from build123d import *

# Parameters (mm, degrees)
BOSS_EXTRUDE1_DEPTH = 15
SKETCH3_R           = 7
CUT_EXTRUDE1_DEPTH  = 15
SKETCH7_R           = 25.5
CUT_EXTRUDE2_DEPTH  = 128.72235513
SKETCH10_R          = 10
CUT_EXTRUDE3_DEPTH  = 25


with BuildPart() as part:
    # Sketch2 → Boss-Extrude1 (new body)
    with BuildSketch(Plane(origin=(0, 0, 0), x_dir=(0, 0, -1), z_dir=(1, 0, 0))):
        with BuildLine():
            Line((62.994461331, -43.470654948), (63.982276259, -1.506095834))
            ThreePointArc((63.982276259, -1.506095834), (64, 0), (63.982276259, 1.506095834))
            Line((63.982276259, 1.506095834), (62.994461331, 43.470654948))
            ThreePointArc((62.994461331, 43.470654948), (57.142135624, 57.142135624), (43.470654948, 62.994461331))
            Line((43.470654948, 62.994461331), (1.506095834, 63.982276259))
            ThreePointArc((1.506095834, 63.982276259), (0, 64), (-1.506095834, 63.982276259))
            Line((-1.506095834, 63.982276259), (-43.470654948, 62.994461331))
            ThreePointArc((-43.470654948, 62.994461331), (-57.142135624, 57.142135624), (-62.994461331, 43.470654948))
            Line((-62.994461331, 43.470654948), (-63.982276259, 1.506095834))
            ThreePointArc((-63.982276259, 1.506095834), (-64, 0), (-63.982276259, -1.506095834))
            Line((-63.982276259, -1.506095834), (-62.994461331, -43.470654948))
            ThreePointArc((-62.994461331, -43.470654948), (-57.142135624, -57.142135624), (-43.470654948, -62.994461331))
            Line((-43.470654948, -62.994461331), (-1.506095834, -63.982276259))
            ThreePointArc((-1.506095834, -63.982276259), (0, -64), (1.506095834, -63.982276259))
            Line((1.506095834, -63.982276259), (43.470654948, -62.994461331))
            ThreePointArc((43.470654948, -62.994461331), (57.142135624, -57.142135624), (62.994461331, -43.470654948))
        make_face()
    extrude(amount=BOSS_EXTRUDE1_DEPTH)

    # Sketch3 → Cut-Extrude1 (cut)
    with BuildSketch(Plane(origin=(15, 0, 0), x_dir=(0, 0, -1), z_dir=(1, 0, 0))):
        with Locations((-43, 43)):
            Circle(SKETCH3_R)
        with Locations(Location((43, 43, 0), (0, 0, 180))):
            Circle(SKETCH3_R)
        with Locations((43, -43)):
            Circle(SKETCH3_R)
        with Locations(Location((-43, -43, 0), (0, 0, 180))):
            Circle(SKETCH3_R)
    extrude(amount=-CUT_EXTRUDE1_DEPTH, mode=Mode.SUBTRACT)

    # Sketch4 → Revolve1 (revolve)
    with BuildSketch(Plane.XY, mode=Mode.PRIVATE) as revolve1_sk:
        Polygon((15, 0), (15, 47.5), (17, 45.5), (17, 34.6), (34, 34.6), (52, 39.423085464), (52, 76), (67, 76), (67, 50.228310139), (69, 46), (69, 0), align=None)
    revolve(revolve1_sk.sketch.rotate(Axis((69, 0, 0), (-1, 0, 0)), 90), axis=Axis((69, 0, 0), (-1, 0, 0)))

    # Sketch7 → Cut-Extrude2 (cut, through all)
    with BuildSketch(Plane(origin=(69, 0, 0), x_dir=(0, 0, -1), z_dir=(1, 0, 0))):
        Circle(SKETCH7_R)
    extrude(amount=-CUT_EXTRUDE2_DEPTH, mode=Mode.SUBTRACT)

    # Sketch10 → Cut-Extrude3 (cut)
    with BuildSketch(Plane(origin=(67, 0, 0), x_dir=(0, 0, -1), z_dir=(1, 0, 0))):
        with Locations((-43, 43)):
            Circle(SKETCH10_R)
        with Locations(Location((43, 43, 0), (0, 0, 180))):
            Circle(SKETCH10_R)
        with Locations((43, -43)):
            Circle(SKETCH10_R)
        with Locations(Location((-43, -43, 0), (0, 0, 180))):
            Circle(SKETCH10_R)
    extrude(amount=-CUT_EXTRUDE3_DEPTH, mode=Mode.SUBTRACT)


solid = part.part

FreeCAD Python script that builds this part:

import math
import FreeCAD as App
import Part
import Sketcher
from FreeCAD import Vector
Q = App.Units.Quantity

doc = App.newDocument("Part")
body = doc.addObject("PartDesign::Body", "Body")

# Sketch on YZ plane
sketch1 = body.newObject("Sketcher::SketchObject", "Sketch")
sketch1.AttachmentSupport = (doc.getObject("YZ_Plane"), [""])
sketch1.MapMode = "FlatFace"
sketch1.addGeometry([
    Part.LineSegment(Vector(-43.5, -63, 0), Vector(-1.5, -64, 0)),  # 0
    Part.ArcOfCircle(Part.Circle(Vector(0, 0, 0), Vector(0, 0, 1), 64), math.radians(-91.35), math.radians(-88.65)),  # 1
    Part.LineSegment(Vector(1.5, -64, 0), Vector(43.5, -63, 0)),  # 2
    Part.ArcOfCircle(Part.Circle(Vector(43, -43, 0), Vector(0, 0, 1), 20), math.radians(-89), math.radians(-1)),  # 3
    Part.LineSegment(Vector(63, -43.5, 0), Vector(64, -1.5, 0)),  # 4
    Part.ArcOfCircle(Part.Circle(Vector(0, 0, 0), Vector(0, 0, 1), 64), math.radians(-1.35), math.radians(1.35)),  # 5
    Part.LineSegment(Vector(64, 1.5, 0), Vector(63, 43.5, 0)),  # 6
    Part.ArcOfCircle(Part.Circle(Vector(43, 43, 0), Vector(0, 0, 1), 20), math.radians(1), math.radians(89)),  # 7
    Part.LineSegment(Vector(43.5, 63, 0), Vector(1.5, 64, 0)),  # 8
    Part.ArcOfCircle(Part.Circle(Vector(0, 0, 0), Vector(0, 0, 1), 64), math.radians(88.65), math.radians(91.35)),  # 9
    Part.LineSegment(Vector(-1.5, 64, 0), Vector(-43.5, 63, 0)),  # 10
    Part.ArcOfCircle(Part.Circle(Vector(-43, 43, 0), Vector(0, 0, 1), 20), math.radians(91), math.radians(179)),  # 11
    Part.LineSegment(Vector(-63, 43.5, 0), Vector(-64, 1.5, 0)),  # 12
    Part.ArcOfCircle(Part.Circle(Vector(0, 0, 0), Vector(0, 0, 1), 64), math.radians(178.65), math.radians(181.35)),  # 13
    Part.LineSegment(Vector(-64, -1.5, 0), Vector(-63, -43.5, 0)),  # 14
    Part.ArcOfCircle(Part.Circle(Vector(-43, -43, 0), Vector(0, 0, 1), 20), math.radians(-179), math.radians(-91)),  # 15
], False)
sketch1.addConstraint([
    Sketcher.Constraint("Tangent", 0, 2, 1, 1),
    Sketcher.Constraint("Tangent", 1, 2, 2, 1),
    Sketcher.Constraint("Tangent", 2, 2, 3, 1),
    Sketcher.Constraint("Tangent", 3, 2, 4, 1),
    Sketcher.Constraint("Tangent", 4, 2, 5, 1),
    Sketcher.Constraint("Tangent", 5, 2, 6, 1),
    Sketcher.Constraint("Tangent", 6, 2, 7, 1),
    Sketcher.Constraint("Tangent", 7, 2, 8, 1),
    Sketcher.Constraint("Tangent", 8, 2, 9, 1),
    Sketcher.Constraint("Tangent", 9, 2, 10, 1),
    Sketcher.Constraint("Tangent", 10, 2, 11, 1),
    Sketcher.Constraint("Tangent", 11, 2, 12, 1),
    Sketcher.Constraint("Tangent", 12, 2, 13, 1),
    Sketcher.Constraint("Tangent", 13, 2, 14, 1),
    Sketcher.Constraint("Tangent", 14, 2, 15, 1),
    Sketcher.Constraint("Tangent", 15, 2, 0, 1),
    Sketcher.Constraint("Coincident", 1, 3, -1, 1),
    Sketcher.Constraint("Coincident", 5, 3, -1, 1),
    Sketcher.Constraint("Coincident", 9, 3, -1, 1),
    Sketcher.Constraint("Coincident", 13, 3, -1, 1),
    Sketcher.Constraint("Equal", 1, 5),
    Sketcher.Constraint("Equal", 3, 7),
    Sketcher.Constraint("Equal", 5, 9),
    Sketcher.Constraint("Equal", 7, 11),
    Sketcher.Constraint("Equal", 9, 13),
    Sketcher.Constraint("Equal", 11, 15),
    Sketcher.Constraint("Symmetric", 3, 3, 11, 3, -1, 1),
    Sketcher.Constraint("Symmetric", 7, 3, 15, 3, -1, 1),
    Sketcher.Constraint("Symmetric", 7, 3, 11, 3, -2),
    Sketcher.Constraint("Perpendicular", 0, 4),
    Sketcher.Constraint("Radius", 1, Q("63.999998 mm")),
    Sketcher.Constraint("Radius", 3, Q("20 mm")),
    Sketcher.Constraint("DistanceX", -1, 1, 3, 3, Q("43 mm")),
])
pad1 = body.newObject("PartDesign::Pad", "Pad")
pad1.Profile = sketch1
pad1.Length = 15

# Sketch on YZ plane
sketch2 = body.newObject("Sketcher::SketchObject", "Sketch001")
sketch2.AttachmentSupport = (doc.getObject("YZ_Plane"), [""])
sketch2.MapMode = "FlatFace"
sketch2.AttachmentOffset = App.Placement(Vector(0, 0, 15), App.Rotation())
sketch2.addGeometry([
    Part.Circle(Vector(43, 43, 0), Vector(0, 0, 1), 7),
    Part.Circle(Vector(43, -43, 0), Vector(0, 0, 1), 7),
    Part.Circle(Vector(-43, -43, 0), Vector(0, 0, 1), 7),
    Part.Circle(Vector(-43, 43, 0), Vector(0, 0, 1), 7),
], False)
sketch2.addConstraint([
    Sketcher.Constraint("Equal", 0, 1),
    Sketcher.Constraint("Equal", 1, 2),
    Sketcher.Constraint("Equal", 2, 3),
    Sketcher.Constraint("Symmetric", 0, 3, 2, 3, -1, 1),
    Sketcher.Constraint("Symmetric", 1, 3, 3, 3, -1, 1),
    Sketcher.Constraint("Symmetric", 1, 3, 2, 3, -2),
    Sketcher.Constraint("Diameter", 0, Q("14 mm")),
    Sketcher.Constraint("DistanceX", -1, 1, 0, 3, Q("43 mm")),
    Sketcher.Constraint("DistanceY", -1, 1, 0, 3, Q("43 mm")),
])
pocket1 = body.newObject("PartDesign::Pocket", "Pocket")
pocket1.Profile = sketch2
pocket1.Length = 15

# Sketch on XY plane
sketch3 = body.newObject("Sketcher::SketchObject", "Sketch002")
sketch3.AttachmentSupport = (doc.getObject("XY_Plane"), [""])
sketch3.MapMode = "FlatFace"
sketch3.addGeometry([
    Part.LineSegment(Vector(15, 47.5, 0), Vector(15, 0, 0)),  # 0
    Part.LineSegment(Vector(15, 0, 0), Vector(69, 0, 0)),  # 1
    Part.LineSegment(Vector(69, 0, 0), Vector(69, 46, 0)),  # 2
    Part.LineSegment(Vector(69, 46, 0), Vector(67, 50.2, 0)),  # 3
    Part.LineSegment(Vector(67, 50.2, 0), Vector(67, 76, 0)),  # 4
    Part.LineSegment(Vector(67, 76, 0), Vector(52, 76, 0)),  # 5
    Part.LineSegment(Vector(52, 76, 0), Vector(52, 39.4, 0)),  # 6
    Part.LineSegment(Vector(52, 39.4, 0), Vector(34, 34.6, 0)),  # 7
    Part.LineSegment(Vector(34, 34.6, 0), Vector(17, 34.6, 0)),  # 8
    Part.LineSegment(Vector(17, 34.6, 0), Vector(17, 45.5, 0)),  # 9
    Part.LineSegment(Vector(17, 45.5, 0), Vector(15, 47.5, 0)),  # 10
], False)
sketch3.addConstraint([
    Sketcher.Constraint("Coincident", 0, 2, 1, 1),
    Sketcher.Constraint("Coincident", 1, 2, 2, 1),
    Sketcher.Constraint("Coincident", 2, 2, 3, 1),
    Sketcher.Constraint("Coincident", 3, 2, 4, 1),
    Sketcher.Constraint("Coincident", 4, 2, 5, 1),
    Sketcher.Constraint("Coincident", 5, 2, 6, 1),
    Sketcher.Constraint("Coincident", 6, 2, 7, 1),
    Sketcher.Constraint("Coincident", 7, 2, 8, 1),
    Sketcher.Constraint("Coincident", 8, 2, 9, 1),
    Sketcher.Constraint("Coincident", 9, 2, 10, 1),
    Sketcher.Constraint("Coincident", 10, 2, 0, 1),
    Sketcher.Constraint("Vertical", 0),
    Sketcher.Constraint("Horizontal", 1),
    Sketcher.Constraint("Vertical", 2),
    Sketcher.Constraint("Vertical", 4),
    Sketcher.Constraint("Horizontal", 5),
    Sketcher.Constraint("Vertical", 6),
    Sketcher.Constraint("Horizontal", 8),
    Sketcher.Constraint("Vertical", 9),
    Sketcher.Constraint("PointOnObject", 0, 2, -1),
    Sketcher.Constraint("DistanceX", 1, 1, 1, 2, Q("54 mm")),
    Sketcher.Constraint("DistanceX", 5, 2, 5, 1, Q("15 mm")),
    Sketcher.Constraint("DistanceX", 8, 2, 8, 1, Q("17 mm")),
    Sketcher.Constraint("DistanceY", 2, 1, 2, 2, Q("46 mm")),
    Sketcher.Constraint("Angle", 7, Q("-165 deg")),
    Sketcher.Constraint("Angle", 10, Q("135 deg")),
    Sketcher.Constraint("DistanceY", 0, 2, 0, 1, Q("47.5 mm")),
    Sketcher.Constraint("DistanceY", 9, 1, 9, 2, Q("10.9 mm")),
    Sketcher.Constraint("DistanceX", -1, 1, 0, 2, Q("15 mm")),
    Sketcher.Constraint("DistanceX", -1, 1, 3, 2, Q("67 mm")),
    Sketcher.Constraint("DistanceY", -1, 1, 4, 2, Q("76 mm")),
    Sketcher.Constraint("DistanceX", -1, 1, 7, 2, Q("34 mm")),
    Sketcher.Constraint("DistanceY", 4, 1, 4, 2, Q("25.77169 mm")),
])
revolution = body.newObject("PartDesign::Revolution", "Revolution")
revolution.Profile = sketch3
revolution.ReferenceAxis = (sketch3, ["H_Axis"])
revolution.Angle = 360

# Sketch on YZ plane
sketch4 = body.newObject("Sketcher::SketchObject", "Sketch003")
sketch4.AttachmentSupport = (doc.getObject("YZ_Plane"), [""])
sketch4.MapMode = "FlatFace"
sketch4.AttachmentOffset = App.Placement(Vector(0, 0, 69), App.Rotation())
sketch4.addGeometry(Part.Circle(Vector(0, 0, 0), Vector(0, 0, 1), 26), False)
sketch4.addConstraint([
    Sketcher.Constraint("Coincident", 0, 3, -1, 1),
    Sketcher.Constraint("Diameter", 0, Q("51 mm")),
])
pocket2 = body.newObject("PartDesign::Pocket", "Pocket001")
pocket2.Profile = sketch4
pocket2.Type = "ThroughAll"

# Sketch on YZ plane
sketch5 = body.newObject("Sketcher::SketchObject", "Sketch004")
sketch5.AttachmentSupport = (doc.getObject("YZ_Plane"), [""])
sketch5.MapMode = "FlatFace"
sketch5.AttachmentOffset = App.Placement(Vector(0, 0, 67), App.Rotation())
sketch5.addGeometry([
    Part.Circle(Vector(43, 43, 0), Vector(0, 0, 1), 10),
    Part.Circle(Vector(43, -43, 0), Vector(0, 0, 1), 10),
    Part.Circle(Vector(-43, -43, 0), Vector(0, 0, 1), 10),
    Part.Circle(Vector(-43, 43, 0), Vector(0, 0, 1), 10),
], False)
sketch5.addConstraint([
    Sketcher.Constraint("Equal", 0, 1),
    Sketcher.Constraint("Equal", 1, 2),
    Sketcher.Constraint("Equal", 2, 3),
    Sketcher.Constraint("Symmetric", 0, 3, 2, 3, -1, 1),
    Sketcher.Constraint("Symmetric", 1, 3, 3, 3, -1, 1),
    Sketcher.Constraint("Symmetric", 1, 3, 2, 3, -2),
    Sketcher.Constraint("Diameter", 0, Q("20 mm")),
    Sketcher.Constraint("DistanceX", -1, 1, 0, 3, Q("43 mm")),
    Sketcher.Constraint("DistanceY", -1, 1, 0, 3, Q("43 mm")),
])
pocket3 = body.newObject("PartDesign::Pocket", "Pocket002")
pocket3.Profile = sketch5
pocket3.Length = 25

doc.recompute()
